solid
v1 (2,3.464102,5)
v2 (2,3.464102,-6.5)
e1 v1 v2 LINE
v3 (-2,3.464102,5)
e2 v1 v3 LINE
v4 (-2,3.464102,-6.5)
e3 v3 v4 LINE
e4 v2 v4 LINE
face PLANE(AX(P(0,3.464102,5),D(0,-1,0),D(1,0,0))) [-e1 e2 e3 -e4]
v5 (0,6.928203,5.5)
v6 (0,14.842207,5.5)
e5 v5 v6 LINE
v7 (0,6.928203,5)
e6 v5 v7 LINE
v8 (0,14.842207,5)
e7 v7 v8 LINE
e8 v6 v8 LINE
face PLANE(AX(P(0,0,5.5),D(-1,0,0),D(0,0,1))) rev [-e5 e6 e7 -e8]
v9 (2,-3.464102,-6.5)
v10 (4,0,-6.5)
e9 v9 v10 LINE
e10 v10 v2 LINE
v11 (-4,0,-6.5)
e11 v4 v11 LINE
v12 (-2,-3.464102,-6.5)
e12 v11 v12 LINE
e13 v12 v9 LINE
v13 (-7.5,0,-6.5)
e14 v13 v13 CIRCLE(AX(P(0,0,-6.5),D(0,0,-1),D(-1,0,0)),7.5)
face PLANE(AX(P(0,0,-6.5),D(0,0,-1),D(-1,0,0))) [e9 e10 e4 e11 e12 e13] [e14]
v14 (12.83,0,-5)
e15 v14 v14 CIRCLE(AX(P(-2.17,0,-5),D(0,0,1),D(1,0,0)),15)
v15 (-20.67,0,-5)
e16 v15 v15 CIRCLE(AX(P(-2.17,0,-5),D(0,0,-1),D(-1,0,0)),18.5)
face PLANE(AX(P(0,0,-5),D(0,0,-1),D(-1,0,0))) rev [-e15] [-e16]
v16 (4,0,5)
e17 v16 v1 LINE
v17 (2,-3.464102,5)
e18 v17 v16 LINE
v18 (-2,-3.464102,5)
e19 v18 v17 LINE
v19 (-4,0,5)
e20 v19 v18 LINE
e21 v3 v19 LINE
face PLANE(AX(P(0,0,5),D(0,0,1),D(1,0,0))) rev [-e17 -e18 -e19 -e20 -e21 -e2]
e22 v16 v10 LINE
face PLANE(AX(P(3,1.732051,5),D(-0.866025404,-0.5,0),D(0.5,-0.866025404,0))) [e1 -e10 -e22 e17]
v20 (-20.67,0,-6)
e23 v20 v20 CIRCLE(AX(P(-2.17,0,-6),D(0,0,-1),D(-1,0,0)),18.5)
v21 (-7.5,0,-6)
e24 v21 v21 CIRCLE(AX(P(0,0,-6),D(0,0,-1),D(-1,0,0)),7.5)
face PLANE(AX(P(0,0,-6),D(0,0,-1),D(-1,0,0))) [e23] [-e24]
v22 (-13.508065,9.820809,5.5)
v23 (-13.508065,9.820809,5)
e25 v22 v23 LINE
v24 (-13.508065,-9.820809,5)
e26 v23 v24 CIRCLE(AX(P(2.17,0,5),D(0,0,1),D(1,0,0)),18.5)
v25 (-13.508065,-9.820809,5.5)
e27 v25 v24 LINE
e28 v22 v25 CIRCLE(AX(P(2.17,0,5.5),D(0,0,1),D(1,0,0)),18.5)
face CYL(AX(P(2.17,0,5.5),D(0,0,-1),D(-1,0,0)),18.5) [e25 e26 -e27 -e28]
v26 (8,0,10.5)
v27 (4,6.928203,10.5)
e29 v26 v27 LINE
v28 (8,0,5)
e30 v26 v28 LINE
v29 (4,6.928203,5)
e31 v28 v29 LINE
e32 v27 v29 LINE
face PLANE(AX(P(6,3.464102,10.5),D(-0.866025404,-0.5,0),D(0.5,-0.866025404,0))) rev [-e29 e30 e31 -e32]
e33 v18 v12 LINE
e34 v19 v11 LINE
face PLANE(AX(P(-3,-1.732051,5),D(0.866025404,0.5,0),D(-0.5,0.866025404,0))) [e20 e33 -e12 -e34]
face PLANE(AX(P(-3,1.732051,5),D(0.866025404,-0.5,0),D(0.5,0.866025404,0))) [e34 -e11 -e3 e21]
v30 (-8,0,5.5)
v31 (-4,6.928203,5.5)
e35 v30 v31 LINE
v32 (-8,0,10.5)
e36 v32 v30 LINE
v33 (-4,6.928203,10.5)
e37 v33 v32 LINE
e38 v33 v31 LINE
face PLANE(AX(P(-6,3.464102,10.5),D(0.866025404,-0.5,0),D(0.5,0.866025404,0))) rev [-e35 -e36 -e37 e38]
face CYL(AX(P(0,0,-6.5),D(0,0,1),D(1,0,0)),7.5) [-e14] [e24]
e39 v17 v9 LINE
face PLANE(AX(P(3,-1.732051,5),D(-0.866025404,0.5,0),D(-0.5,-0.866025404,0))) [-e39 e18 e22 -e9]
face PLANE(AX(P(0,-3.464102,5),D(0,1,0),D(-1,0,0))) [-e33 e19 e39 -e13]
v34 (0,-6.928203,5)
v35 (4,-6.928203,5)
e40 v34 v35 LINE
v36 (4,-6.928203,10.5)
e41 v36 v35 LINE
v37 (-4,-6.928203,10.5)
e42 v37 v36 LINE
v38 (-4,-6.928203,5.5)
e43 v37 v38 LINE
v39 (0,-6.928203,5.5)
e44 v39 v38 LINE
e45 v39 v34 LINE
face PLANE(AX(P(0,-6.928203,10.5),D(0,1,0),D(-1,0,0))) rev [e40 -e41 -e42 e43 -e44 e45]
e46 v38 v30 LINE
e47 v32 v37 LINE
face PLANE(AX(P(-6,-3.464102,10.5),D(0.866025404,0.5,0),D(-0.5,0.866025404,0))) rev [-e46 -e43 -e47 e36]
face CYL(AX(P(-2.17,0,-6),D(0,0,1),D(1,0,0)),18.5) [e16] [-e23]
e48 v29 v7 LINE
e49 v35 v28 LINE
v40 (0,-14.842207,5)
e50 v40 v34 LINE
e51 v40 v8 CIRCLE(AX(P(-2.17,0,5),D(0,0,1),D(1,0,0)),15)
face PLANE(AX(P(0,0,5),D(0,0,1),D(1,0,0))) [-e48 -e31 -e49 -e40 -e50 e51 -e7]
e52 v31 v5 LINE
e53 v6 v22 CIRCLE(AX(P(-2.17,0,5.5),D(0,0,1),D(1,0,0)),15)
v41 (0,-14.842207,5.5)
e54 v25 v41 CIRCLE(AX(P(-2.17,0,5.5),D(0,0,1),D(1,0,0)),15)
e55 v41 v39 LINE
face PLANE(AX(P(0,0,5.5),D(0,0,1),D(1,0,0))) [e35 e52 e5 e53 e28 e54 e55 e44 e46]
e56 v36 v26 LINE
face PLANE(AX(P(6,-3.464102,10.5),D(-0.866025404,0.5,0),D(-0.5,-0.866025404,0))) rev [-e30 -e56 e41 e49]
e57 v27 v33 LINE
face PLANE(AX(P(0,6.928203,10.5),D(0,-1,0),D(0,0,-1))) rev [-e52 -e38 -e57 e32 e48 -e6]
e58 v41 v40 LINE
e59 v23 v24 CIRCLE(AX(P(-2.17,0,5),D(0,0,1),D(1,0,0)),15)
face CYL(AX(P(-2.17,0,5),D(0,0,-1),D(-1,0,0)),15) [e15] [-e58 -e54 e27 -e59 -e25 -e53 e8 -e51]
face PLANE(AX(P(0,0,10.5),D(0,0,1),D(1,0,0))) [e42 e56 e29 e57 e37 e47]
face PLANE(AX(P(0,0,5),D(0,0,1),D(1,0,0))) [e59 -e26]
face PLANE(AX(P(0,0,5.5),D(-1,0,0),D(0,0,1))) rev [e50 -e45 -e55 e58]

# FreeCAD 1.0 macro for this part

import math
import FreeCAD as App
import Part
import Sketcher

V = App.Vector
Q = App.Units.Quantity


def add_polygon(sketch, points):
    """Adds a closed chain of lines whose ends are joined by coincident constraints."""
    first, n = sketch.GeometryCount, len(points)
    for a, b in zip(points, points[1:] + points[:1]):
        sketch.addGeometry(Part.LineSegment(App.Vector(*a, 0), App.Vector(*b, 0)), False)
    for i in range(n):
        sketch.addConstraint(Sketcher.Constraint("Coincident", first + i, 2, first + (i + 1) % n, 1))

doc = App.newDocument("Part")
body = doc.addObject("PartDesign::Body", "Body")

# Sketch on XY plane
sketch1 = body.newObject("Sketcher::SketchObject", "Sketch")
sketch1.AttachmentSupport = (doc.getObject("XY_Plane"), [""])
sketch1.MapMode = "FlatFace"
sketch1.addGeometry(Part.Circle(V(-2.2, 0, 0), V(0, 0, 1), 15), False)  # 0
add_polygon(sketch1, [(-4, 0), (-2, 3.5), (2, 3.5), (4, 0), (2, -3.5), (-2, -3.5)])  # lines 1-6
sketch1.addConstraint([
    Sketcher.Constraint("Horizontal", 2),
    Sketcher.Constraint("Horizontal", 5),
    Sketcher.Constraint("Symmetric", 1, 2, 4, 2, -1, 1),
    Sketcher.Constraint("Symmetric", 3, 2, 6, 2, -1, 1),
    Sketcher.Constraint("PointOnObject", 0, 3, -1),
    Sketcher.Constraint("PointOnObject", 3, 2, -1),
    Sketcher.Constraint("Parallel", 3, 6),
    Sketcher.Constraint("Vertical", 2, 2, 4, 2),
    Sketcher.Constraint("Diameter", 0, 30.0),
    Sketcher.Constraint("DistanceX", 2, 1, 2, 2, 4.0),
    Sketcher.Constraint("Angle", 1, Q("60 deg")),
    Sketcher.Constraint("Distance", 1, 4.0),
    Sketcher.Constraint("DistanceX", 0, 3, -1, 1, 2.17),
])
pad1 = body.newObject("PartDesign::Pad", "Pad")
pad1.Profile = sketch1
pad1.Length = 10
pad1.Midplane = True

# Sketch on XY plane
sketch2 = body.newObject("Sketcher::SketchObject", "Sketch001")
sketch2.AttachmentSupport = (doc.getObject("XY_Plane"), [""])
sketch2.MapMode = "FlatFace"
sketch2.AttachmentOffset = App.Placement(V(0, 0, -5), App.Rotation())
sketch2.addGeometry(Part.Circle(V(-2.2, 0, 0), V(0, 0, 1), 18.5), False)  # 0
add_polygon(sketch2, [(4, 0), (2, 3.5), (-2, 3.5), (-4, 0), (-2, -3.5), (2, -3.5)])  # lines 1-6
sketch2.addConstraint([
    Sketcher.Constraint("Horizontal", 2),
    Sketcher.Constraint("Horizontal", 5),
    Sketcher.Constraint("Symmetric", 1, 2, 4, 2, -1, 1),
    Sketcher.Constraint("Symmetric", 3, 2, 6, 2, -1, 1),
    Sketcher.Constraint("PointOnObject", 0, 3, -1),
    Sketcher.Constraint("PointOnObject", 3, 2, -1),
    Sketcher.Constraint("Parallel", 3, 6),
    Sketcher.Constraint("Vertical", 2, 2, 4, 2),
    Sketcher.Constraint("Diameter", 0, 37.0),
    Sketcher.Constraint("DistanceX", 2, 2, 2, 1, 4.0),
    Sketcher.Constraint("Angle", 1, Q("120 deg")),
    Sketcher.Constraint("Distance", 1, 4.0),
    Sketcher.Constraint("DistanceX", 0, 3, -1, 1, 2.17),
])
pad2 = body.newObject("PartDesign::Pad", "Pad001")
pad2.Profile = sketch2
pad2.Length = 1
pad2.Reversed = True

# Sketch on XY plane
sketch3 = body.newObject("Sketcher::SketchObject", "Sketch002")
sketch3.AttachmentSupport = (doc.getObject("XY_Plane"), [""])
sketch3.MapMode = "FlatFace"
sketch3.AttachmentOffset = App.Placement(V(0, 0, -6), App.Rotation())
sketch3.addGeometry(Part.Circle(V(0, 0, 0), V(0, 0, 1), 7.5), False)  # 0
add_polygon(sketch3, [(-4, 0), (-2, -3.5), (2, -3.5), (4, 0), (2, 3.5), (-2, 3.5)])  # lines 1-6
sketch3.addConstraint([
    Sketcher.Constraint("Horizontal", 2),
    Sketcher.Constraint("Horizontal", 5),
    Sketcher.Constraint("Coincident", 0, 3, -1, 1),
    Sketcher.Constraint("Symmetric", 1, 2, 4, 2, -1, 1),
    Sketcher.Constraint("Symmetric", 3, 2, 6, 2, -1, 1),
    Sketcher.Constraint("PointOnObject", 3, 2, -1),
    Sketcher.Constraint("Parallel", 3, 6),
    Sketcher.Constraint("Vertical", 2, 2, 4, 2),
    Sketcher.Constraint("Diameter", 0, 15.0),
    Sketcher.Constraint("DistanceX", 2, 1, 2, 2, 4.0),
    Sketcher.Constraint("Angle", 1, Q("-60 deg")),
    Sketcher.Constraint("Distance", 1, 4.0),
])
pad3 = body.newObject("PartDesign::Pad", "Pad002")
pad3.Profile = sketch3
pad3.Length = 0.5
pad3.Reversed = True

# Sketch on XY plane
sketch4 = body.newObject("Sketcher::SketchObject", "Sketch003")
sketch4.AttachmentSupport = (doc.getObject("XY_Plane"), [""])
sketch4.MapMode = "FlatFace"
sketch4.AttachmentOffset = App.Placement(V(0, 0, 5), App.Rotation())
add_polygon(sketch4, [(4, 7), (-4, 7), (-8, 0), (-4, -7), (4, -7), (8, 0)])  # lines 0-5
sketch4.addConstraint([
    Sketcher.Constraint("Horizontal", 0),
    Sketcher.Constraint("Horizontal", 3),
    Sketcher.Constraint("Symmetric", 0, 2, 3, 2, -1, 1),
    Sketcher.Constraint("Symmetric", 1, 2, 4, 2, -1, 1),
    Sketcher.Constraint("PointOnObject", 1, 2, -1),
    Sketcher.Constraint("Parallel", 2, 5),
    Sketcher.Constraint("Vertical", 0, 2, 2, 2),
    Sketcher.Constraint("DistanceX", 0, 2, 0, 1, 8.0),
    Sketcher.Constraint("Angle", 1, Q("-120 deg")),
    Sketcher.Constraint("Distance", 1, 8.0),
])
pad4 = body.newObject("PartDesign::Pad", "Pad003")
pad4.Profile = sketch4
pad4.Length = 5.5

# Sketch on XY plane
sketch5 = body.newObject("Sketcher::SketchObject", "Sketch004")
sketch5.AttachmentSupport = (doc.getObject("XY_Plane"), [""])
sketch5.MapMode = "FlatFace"
sketch5.AttachmentOffset = App.Placement(V(0, 0, 5.5), App.Rotation())
sketch5.addGeometry([
    Part.ArcOfCircle(Part.Circle(V(-2.2, 0, 0), V(0, 0, 1), 15), math.radians(-139), math.radians(-82)),  # 0
    Part.LineSegment(V(0, -14.8, 0), V(0, -6.9, 0)),  # 1
    Part.LineSegment(V(0, -6.9, 0), V(-4, -6.9, 0)),  # 2
    Part.LineSegment(V(-4, -6.9, 0), V(-8, 0, 0)),  # 3
    Part.LineSegment(V(-8, 0, 0), V(-4, 6.9, 0)),  # 4
    Part.LineSegment(V(-4, 6.9, 0), V(0, 6.9, 0)),  # 5
    Part.LineSegment(V(0, 6.9, 0), V(0, 14.8, 0)),  # 6
    Part.ArcOfCircle(Part.Circle(V(-2.2, 0, 0), V(0, 0, 1), 15), math.radians(82), math.radians(139)),  # 7
    Part.ArcOfCircle(Part.Circle(V(2.2, 0, 0), V(0, 0, 1), 18.5), math.radians(148), math.radians(212)),  # 8
], False)
sketch5.addConstraint([
    Sketcher.Constraint("Coincident", 0, 2, 1, 1),
    Sketcher.Constraint("Coincident", 1, 2, 2, 1),
    Sketcher.Constraint("Coincident", 2, 2, 3, 1),
    Sketcher.Constraint("Coincident", 3, 2, 4, 1),
    Sketcher.Constraint("Coincident", 4, 2, 5, 1),
    Sketcher.Constraint("Coincident", 5, 2, 6, 1),
    Sketcher.Constraint("Coincident", 6, 2, 7, 1),
    Sketcher.Constraint("Coincident", 7, 2, 8, 1),
    Sketcher.Constraint("Coincident", 8, 2, 0, 1),
    Sketcher.Constraint("Vertical", 1),
    Sketcher.Constraint("Horizontal", 2),
    Sketcher.Constraint("Horizontal", 5),
    Sketcher.Constraint("Vertical", 6),
    Sketcher.Constraint("Coincident", 7, 3, 0, 3),
    Sketcher.Constraint("Equal", 0, 7),
    Sketcher.Constraint("Symmetric", 0, 3, 8, 3, -1, 1),
    Sketcher.Constraint("Symmetric", 1, 2, 5, 2, -1, 1),
    Sketcher.Constraint("Symmetric", 0, 2, 6, 2, -1),
    Sketcher.Constraint("PointOnObject", 3, 2, -1),
    Sketcher.Constraint("Vertical", 2, 2, 4, 2),
    Sketcher.Constraint("Radius", 0, 15.0),
    Sketcher.Constraint("Radius", 8, 18.5),
    Sketcher.Constraint("DistanceX", 2, 2, 2, 1, 4.0),
    Sketcher.Constraint("Angle", 3, Q("120 deg")),
    Sketcher.Constraint("Distance", 3, 8.0),
    Sketcher.Constraint("DistanceX", 0, 3, -1, 1, 2.17),
])
pad5 = body.newObject("PartDesign::Pad", "Pad004")
pad5.Profile = sketch5
pad5.Length = 0.5
pad5.Reversed = True

doc.recompute()
